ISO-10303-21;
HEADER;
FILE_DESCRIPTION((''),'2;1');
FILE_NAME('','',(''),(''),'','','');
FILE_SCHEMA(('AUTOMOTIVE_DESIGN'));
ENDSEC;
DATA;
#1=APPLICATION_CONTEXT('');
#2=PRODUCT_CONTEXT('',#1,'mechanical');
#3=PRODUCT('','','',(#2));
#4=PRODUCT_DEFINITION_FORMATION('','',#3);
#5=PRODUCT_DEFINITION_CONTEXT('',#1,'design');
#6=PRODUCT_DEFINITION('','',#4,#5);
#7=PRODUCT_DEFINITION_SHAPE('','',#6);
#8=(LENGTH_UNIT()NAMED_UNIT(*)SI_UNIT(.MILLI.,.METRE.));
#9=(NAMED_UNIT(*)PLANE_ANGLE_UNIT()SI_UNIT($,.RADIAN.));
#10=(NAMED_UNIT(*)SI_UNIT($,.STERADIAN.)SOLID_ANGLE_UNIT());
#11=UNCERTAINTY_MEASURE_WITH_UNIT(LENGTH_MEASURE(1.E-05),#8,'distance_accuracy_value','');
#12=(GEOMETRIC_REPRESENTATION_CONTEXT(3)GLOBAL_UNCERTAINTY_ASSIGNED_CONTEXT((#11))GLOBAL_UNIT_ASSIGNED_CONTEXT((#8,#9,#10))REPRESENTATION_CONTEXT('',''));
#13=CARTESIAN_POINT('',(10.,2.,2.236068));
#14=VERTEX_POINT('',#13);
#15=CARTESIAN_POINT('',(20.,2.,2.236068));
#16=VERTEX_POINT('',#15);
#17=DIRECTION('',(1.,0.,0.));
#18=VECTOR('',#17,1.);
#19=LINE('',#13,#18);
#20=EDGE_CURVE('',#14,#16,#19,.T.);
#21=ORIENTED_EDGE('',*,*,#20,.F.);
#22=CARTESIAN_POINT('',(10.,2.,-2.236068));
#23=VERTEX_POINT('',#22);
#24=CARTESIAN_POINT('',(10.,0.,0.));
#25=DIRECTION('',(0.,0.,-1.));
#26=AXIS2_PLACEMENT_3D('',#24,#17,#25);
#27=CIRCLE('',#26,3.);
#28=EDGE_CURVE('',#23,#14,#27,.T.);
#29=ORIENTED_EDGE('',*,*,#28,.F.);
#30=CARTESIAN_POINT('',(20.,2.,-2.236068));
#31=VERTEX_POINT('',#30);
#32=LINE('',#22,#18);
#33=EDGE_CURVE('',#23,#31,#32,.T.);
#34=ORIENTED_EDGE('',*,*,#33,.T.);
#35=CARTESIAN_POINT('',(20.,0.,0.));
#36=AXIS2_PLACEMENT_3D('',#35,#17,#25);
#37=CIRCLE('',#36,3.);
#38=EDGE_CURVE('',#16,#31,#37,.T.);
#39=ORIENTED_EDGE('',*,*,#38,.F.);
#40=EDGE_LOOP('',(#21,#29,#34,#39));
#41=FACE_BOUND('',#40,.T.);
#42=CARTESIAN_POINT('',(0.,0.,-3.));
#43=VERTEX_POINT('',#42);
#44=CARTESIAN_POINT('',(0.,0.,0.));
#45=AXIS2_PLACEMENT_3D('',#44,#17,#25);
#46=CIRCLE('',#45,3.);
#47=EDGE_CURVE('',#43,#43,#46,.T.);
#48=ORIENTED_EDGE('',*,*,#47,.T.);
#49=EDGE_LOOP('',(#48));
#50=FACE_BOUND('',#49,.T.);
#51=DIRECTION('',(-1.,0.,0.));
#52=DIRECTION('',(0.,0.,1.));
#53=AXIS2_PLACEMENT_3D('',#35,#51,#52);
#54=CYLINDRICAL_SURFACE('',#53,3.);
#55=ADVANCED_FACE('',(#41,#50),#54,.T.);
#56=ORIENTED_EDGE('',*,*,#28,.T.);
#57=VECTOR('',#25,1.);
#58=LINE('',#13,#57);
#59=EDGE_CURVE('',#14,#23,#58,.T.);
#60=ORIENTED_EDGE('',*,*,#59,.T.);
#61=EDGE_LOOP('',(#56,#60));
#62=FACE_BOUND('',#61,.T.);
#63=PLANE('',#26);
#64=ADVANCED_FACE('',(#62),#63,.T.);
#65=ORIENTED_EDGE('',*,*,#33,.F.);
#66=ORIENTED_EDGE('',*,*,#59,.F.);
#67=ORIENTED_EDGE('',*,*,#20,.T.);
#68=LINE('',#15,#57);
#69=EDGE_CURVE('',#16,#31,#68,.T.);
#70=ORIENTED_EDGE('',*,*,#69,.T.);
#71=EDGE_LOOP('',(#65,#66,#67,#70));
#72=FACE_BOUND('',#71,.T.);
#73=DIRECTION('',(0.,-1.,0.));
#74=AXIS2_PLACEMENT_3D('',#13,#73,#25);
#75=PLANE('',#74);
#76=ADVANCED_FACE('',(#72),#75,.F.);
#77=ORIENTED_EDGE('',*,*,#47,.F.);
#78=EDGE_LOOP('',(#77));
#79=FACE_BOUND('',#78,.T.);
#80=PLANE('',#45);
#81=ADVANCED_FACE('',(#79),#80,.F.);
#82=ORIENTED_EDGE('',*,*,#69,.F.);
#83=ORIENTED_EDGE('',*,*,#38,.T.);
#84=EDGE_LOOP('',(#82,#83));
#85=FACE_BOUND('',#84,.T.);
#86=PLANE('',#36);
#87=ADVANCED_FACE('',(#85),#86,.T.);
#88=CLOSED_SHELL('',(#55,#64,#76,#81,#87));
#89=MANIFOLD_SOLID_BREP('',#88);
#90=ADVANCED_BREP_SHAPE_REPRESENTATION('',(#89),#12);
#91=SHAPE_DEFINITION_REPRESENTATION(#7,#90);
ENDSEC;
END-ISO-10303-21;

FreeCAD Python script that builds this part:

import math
import FreeCAD as App
import Part
import Sketcher
from FreeCAD import Vector
Q = App.Units.Quantity

doc = App.newDocument("Part")
params = doc.addObject("Spreadsheet::Sheet", "Params")
for row, (alias, value) in enumerate([
    ("sketch1_diameter", "6 mm"),
    ("pad1_length", "20 mm"),
    ("sketch2_radius", "3 mm"),
    ("pocket1_length", "10 mm"),
], start=1):
    params.set(f"A{row}", alias)
    params.set(f"B{row}", "=" + value)
    params.setAlias(f"B{row}", alias)

body = doc.addObject("PartDesign::Body", "Body")

# Sketch on YZ plane
sketch1 = body.newObject("Sketcher::SketchObject", "Sketch")
sketch1.AttachmentSupport = (doc.getObject("YZ_Plane"), [""])
sketch1.MapMode = "FlatFace"
sketch1.addGeometry(Part.Circle(Vector(0, 0, 0), Vector(0, 0, 1), 3), False)
sketch1.addConstraint([
    Sketcher.Constraint("Coincident", 0, 3, -1, 1),
    Sketcher.Constraint("Diameter", 0, Q("6 mm")),
])
sketch1.setExpression("Constraints[1]", "Params.sketch1_diameter")
pad1 = body.newObject("PartDesign::Pad", "Pad")
pad1.Profile = sketch1
pad1.setExpression("Length", "Params.pad1_length")

# Sketch on YZ plane
sketch2 = body.newObject("Sketcher::SketchObject", "Sketch001")
sketch2.AttachmentSupport = (doc.getObject("YZ_Plane"), [""])
sketch2.MapMode = "FlatFace"
sketch2.AttachmentOffset = App.Placement(Vector(0, 0, 20), App.Rotation())
sketch2.addGeometry([
    Part.LineSegment(Vector(2, 2.2, 0), Vector(2, -2.2, 0)),
    Part.ArcOfCircle(Part.Circle(Vector(0, 0, 0), Vector(0, 0, 1), 3), math.radians(-48), math.radians(48)),
], False)
sketch2.addConstraint([
    Sketcher.Constraint("Coincident", 0, 1, 1, 2),
    Sketcher.Constraint("Coincident", 1, 1, 0, 2),
    Sketcher.Constraint("Vertical", 0),
    Sketcher.Constraint("Coincident", 1, 3, -1, 1),
    Sketcher.Constraint("Radius", 1, Q("3 mm")),
    Sketcher.Constraint("DistanceX", -1, 1, 0, 1, Q("2 mm")),
])
sketch2.setExpression("Constraints[4]", "Params.sketch2_radius")
pocket1 = body.newObject("PartDesign::Pocket", "Pocket")
pocket1.Profile = sketch2
pocket1.setExpression("Length", "Params.pocket1_length")

doc.recompute()
